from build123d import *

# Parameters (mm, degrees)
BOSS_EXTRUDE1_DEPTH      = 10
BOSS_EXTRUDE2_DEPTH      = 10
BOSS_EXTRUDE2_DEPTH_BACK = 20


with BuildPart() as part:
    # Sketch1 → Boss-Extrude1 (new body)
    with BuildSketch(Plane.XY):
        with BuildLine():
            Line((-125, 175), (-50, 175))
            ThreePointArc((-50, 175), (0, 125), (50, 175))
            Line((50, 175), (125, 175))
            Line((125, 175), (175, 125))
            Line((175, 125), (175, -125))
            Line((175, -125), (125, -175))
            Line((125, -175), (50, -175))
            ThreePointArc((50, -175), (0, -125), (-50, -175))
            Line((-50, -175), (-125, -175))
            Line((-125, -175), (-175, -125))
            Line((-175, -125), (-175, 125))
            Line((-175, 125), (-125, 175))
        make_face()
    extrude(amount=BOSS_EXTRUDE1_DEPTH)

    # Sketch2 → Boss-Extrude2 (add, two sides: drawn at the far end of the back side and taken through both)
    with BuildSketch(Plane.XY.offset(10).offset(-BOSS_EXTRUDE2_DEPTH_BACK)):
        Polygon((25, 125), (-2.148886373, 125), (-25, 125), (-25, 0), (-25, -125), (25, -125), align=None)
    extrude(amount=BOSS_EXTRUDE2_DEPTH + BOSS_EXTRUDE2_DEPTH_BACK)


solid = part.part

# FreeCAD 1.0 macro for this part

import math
import FreeCAD as App
import Part
import Sketcher
from FreeCAD import Vector
Q = App.Units.Quantity


def add_polygon(sketch, points):
    """Adds a closed chain of lines whose ends are joined by coincident constraints."""
    first, n = sketch.GeometryCount, len(points)
    for a, b in zip(points, points[1:] + points[:1]):
        sketch.addGeometry(Part.LineSegment(App.Vector(*a, 0), App.Vector(*b, 0)), False)
    for i in range(n):
        sketch.addConstraint(Sketcher.Constraint("Coincident", first + i, 2, first + (i + 1) % n, 1))

doc = App.newDocument("Part")
params = doc.addObject("Spreadsheet::Sheet", "Params")
for row, (alias, value) in enumerate([
    ("sketch1_radius", "50 mm"),
    ("sketch1_width", "75 mm"),
    ("sketch1_height", "250 mm"),
    ("pad1_length", "10 mm"),
    ("sketch2_width", "50 mm"),
    ("sketch2_height", "250 mm"),
    ("pad2_length", "10 mm"),
    ("pad2_length2", "20 mm"),
], start=1):
    params.set(f"A{row}", alias)
    params.set(f"B{row}", "=" + value)
    params.setAlias(f"B{row}", alias)

body = doc.addObject("PartDesign::Body", "Body")

sketch1 = body.newObject("Sketcher::SketchObject", "Sketch")
sketch1.AttachmentSupport = (doc.getObject("XY_Plane"), [""])
sketch1.MapMode = "FlatFace"
sketch1.addGeometry([
    Part.LineSegment(Vector(-50, 175, 0), Vector(-125, 175, 0)),
    Part.LineSegment(Vector(-125, 175, 0), Vector(-175, 125, 0)),
    Part.LineSegment(Vector(-175, 125, 0), Vector(-175, -125, 0)),
    Part.LineSegment(Vector(-175, -125, 0), Vector(-125, -175, 0)),
    Part.LineSegment(Vector(-125, -175, 0), Vector(-50, -175, 0)),
    Part.ArcOfCircle(Part.Circle(Vector(0, -175, 0), Vector(0, 0, 1), 50), math.radians(0), math.radians(180)),
    Part.LineSegment(Vector(50, -175, 0), Vector(125, -175, 0)),
    Part.LineSegment(Vector(125, -175, 0), Vector(175, -125, 0)),
    Part.LineSegment(Vector(175, -125, 0), Vector(175, 125, 0)),
    Part.LineSegment(Vector(175, 125, 0), Vector(125, 175, 0)),
    Part.LineSegment(Vector(125, 175, 0), Vector(50, 175, 0)),
    Part.ArcOfCircle(Part.Circle(Vector(0, 175, 0), Vector(0, 0, 1), 50), math.radians(180), math.radians(360)),
], False)
sketch1.addConstraint([
    Sketcher.Constraint("Coincident", 0, 2, 1, 1),
    Sketcher.Constraint("Coincident", 1, 2, 2, 1),
    Sketcher.Constraint("Coincident", 2, 2, 3, 1),
    Sketcher.Constraint("Coincident", 3, 2, 4, 1),
    Sketcher.Constraint("Coincident", 4, 2, 5, 2),
    Sketcher.Constraint("Coincident", 5, 1, 6, 1),
    Sketcher.Constraint("Coincident", 6, 2, 7, 1),
    Sketcher.Constraint("Coincident", 7, 2, 8, 1),
    Sketcher.Constraint("Coincident", 8, 2, 9, 1),
    Sketcher.Constraint("Coincident", 9, 2, 10, 1),
    Sketcher.Constraint("Coincident", 10, 2, 11, 2),
    Sketcher.Constraint("Coincident", 11, 1, 0, 1),
    Sketcher.Constraint("Horizontal", 0),
    Sketcher.Constraint("Vertical", 2),
    Sketcher.Constraint("Horizontal", 4),
    Sketcher.Constraint("Horizontal", 6),
    Sketcher.Constraint("Vertical", 8),
    Sketcher.Constraint("Horizontal", 10),
    Sketcher.Constraint("Equal", 5, 11),
    Sketcher.Constraint("Symmetric", 5, 3, 11, 3, -1, 1),
    Sketcher.Constraint("Symmetric", 0, 2, 6, 2, -1, 1),
    Sketcher.Constraint("Symmetric", 1, 2, 7, 2, -1, 1),
    Sketcher.Constraint("Symmetric", 3, 2, 9, 2, -1, 1),
    Sketcher.Constraint("Symmetric", 4, 2, 5, 1, -2),
    Sketcher.Constraint("Perpendicular", 1, 3),
    Sketcher.Constraint("Perpendicular", 7, 9),
    Sketcher.Constraint("Horizontal", 11, 3, 0, 2),
    Sketcher.Constraint("Horizontal", 2, 2, 7, 2),
    Sketcher.Constraint("Vertical", 0, 2, 3, 2),
    Sketcher.Constraint("Radius", 5, Q("50 mm")),
    Sketcher.Constraint("DistanceX", 0, 2, 0, 1, Q("75 mm")),
    Sketcher.Constraint("DistanceY", 2, 2, 2, 1, Q("250 mm")),
    Sketcher.Constraint("DistanceY", 5, 3, -1, 1, Q("175 mm")),
])
sketch1.setExpression("Constraints[29]", "Params.sketch1_radius")
sketch1.setExpression("Constraints[30]", "Params.sketch1_width")
sketch1.setExpression("Constraints[31]", "Params.sketch1_height")
pad1 = body.newObject("PartDesign::Pad", "Pad")
pad1.Profile = sketch1
pad1.setExpression("Length", "Params.pad1_length")

sketch2 = body.newObject("Sketcher::SketchObject", "Sketch001")
sketch2.AttachmentSupport = (doc.getObject("XY_Plane"), [""])
sketch2.MapMode = "FlatFace"
sketch2.AttachmentOffset = App.Placement(Vector(0, 0, 10), App.Rotation())
add_polygon(sketch2, [(25, 125), (-25, 125), (-25, -125), (25, -125)])
sketch2.addConstraint([
    Sketcher.Constraint("Horizontal", 0),
    Sketcher.Constraint("Vertical", 1),
    Sketcher.Constraint("Horizontal", 2),
    Sketcher.Constraint("Vertical", 3),
    Sketcher.Constraint("Symmetric", 0, 2, 2, 2, -1, 1),
    Sketcher.Constraint("DistanceX", 0, 2, 0, 1, Q("50 mm")),
    Sketcher.Constraint("DistanceY", 1, 2, 1, 1, Q("250 mm")),
])
sketch2.setExpression("Constraints[9]", "Params.sketch2_width")
sketch2.setExpression("Constraints[10]", "Params.sketch2_height")
pad2 = body.newObject("PartDesign::Pad", "Pad001")
pad2.Profile = sketch2
pad2.Type = "TwoLengths"
pad2.setExpression("Length", "Params.pad2_length")
pad2.setExpression("Length2", "Params.pad2_length2")

doc.recompute()
